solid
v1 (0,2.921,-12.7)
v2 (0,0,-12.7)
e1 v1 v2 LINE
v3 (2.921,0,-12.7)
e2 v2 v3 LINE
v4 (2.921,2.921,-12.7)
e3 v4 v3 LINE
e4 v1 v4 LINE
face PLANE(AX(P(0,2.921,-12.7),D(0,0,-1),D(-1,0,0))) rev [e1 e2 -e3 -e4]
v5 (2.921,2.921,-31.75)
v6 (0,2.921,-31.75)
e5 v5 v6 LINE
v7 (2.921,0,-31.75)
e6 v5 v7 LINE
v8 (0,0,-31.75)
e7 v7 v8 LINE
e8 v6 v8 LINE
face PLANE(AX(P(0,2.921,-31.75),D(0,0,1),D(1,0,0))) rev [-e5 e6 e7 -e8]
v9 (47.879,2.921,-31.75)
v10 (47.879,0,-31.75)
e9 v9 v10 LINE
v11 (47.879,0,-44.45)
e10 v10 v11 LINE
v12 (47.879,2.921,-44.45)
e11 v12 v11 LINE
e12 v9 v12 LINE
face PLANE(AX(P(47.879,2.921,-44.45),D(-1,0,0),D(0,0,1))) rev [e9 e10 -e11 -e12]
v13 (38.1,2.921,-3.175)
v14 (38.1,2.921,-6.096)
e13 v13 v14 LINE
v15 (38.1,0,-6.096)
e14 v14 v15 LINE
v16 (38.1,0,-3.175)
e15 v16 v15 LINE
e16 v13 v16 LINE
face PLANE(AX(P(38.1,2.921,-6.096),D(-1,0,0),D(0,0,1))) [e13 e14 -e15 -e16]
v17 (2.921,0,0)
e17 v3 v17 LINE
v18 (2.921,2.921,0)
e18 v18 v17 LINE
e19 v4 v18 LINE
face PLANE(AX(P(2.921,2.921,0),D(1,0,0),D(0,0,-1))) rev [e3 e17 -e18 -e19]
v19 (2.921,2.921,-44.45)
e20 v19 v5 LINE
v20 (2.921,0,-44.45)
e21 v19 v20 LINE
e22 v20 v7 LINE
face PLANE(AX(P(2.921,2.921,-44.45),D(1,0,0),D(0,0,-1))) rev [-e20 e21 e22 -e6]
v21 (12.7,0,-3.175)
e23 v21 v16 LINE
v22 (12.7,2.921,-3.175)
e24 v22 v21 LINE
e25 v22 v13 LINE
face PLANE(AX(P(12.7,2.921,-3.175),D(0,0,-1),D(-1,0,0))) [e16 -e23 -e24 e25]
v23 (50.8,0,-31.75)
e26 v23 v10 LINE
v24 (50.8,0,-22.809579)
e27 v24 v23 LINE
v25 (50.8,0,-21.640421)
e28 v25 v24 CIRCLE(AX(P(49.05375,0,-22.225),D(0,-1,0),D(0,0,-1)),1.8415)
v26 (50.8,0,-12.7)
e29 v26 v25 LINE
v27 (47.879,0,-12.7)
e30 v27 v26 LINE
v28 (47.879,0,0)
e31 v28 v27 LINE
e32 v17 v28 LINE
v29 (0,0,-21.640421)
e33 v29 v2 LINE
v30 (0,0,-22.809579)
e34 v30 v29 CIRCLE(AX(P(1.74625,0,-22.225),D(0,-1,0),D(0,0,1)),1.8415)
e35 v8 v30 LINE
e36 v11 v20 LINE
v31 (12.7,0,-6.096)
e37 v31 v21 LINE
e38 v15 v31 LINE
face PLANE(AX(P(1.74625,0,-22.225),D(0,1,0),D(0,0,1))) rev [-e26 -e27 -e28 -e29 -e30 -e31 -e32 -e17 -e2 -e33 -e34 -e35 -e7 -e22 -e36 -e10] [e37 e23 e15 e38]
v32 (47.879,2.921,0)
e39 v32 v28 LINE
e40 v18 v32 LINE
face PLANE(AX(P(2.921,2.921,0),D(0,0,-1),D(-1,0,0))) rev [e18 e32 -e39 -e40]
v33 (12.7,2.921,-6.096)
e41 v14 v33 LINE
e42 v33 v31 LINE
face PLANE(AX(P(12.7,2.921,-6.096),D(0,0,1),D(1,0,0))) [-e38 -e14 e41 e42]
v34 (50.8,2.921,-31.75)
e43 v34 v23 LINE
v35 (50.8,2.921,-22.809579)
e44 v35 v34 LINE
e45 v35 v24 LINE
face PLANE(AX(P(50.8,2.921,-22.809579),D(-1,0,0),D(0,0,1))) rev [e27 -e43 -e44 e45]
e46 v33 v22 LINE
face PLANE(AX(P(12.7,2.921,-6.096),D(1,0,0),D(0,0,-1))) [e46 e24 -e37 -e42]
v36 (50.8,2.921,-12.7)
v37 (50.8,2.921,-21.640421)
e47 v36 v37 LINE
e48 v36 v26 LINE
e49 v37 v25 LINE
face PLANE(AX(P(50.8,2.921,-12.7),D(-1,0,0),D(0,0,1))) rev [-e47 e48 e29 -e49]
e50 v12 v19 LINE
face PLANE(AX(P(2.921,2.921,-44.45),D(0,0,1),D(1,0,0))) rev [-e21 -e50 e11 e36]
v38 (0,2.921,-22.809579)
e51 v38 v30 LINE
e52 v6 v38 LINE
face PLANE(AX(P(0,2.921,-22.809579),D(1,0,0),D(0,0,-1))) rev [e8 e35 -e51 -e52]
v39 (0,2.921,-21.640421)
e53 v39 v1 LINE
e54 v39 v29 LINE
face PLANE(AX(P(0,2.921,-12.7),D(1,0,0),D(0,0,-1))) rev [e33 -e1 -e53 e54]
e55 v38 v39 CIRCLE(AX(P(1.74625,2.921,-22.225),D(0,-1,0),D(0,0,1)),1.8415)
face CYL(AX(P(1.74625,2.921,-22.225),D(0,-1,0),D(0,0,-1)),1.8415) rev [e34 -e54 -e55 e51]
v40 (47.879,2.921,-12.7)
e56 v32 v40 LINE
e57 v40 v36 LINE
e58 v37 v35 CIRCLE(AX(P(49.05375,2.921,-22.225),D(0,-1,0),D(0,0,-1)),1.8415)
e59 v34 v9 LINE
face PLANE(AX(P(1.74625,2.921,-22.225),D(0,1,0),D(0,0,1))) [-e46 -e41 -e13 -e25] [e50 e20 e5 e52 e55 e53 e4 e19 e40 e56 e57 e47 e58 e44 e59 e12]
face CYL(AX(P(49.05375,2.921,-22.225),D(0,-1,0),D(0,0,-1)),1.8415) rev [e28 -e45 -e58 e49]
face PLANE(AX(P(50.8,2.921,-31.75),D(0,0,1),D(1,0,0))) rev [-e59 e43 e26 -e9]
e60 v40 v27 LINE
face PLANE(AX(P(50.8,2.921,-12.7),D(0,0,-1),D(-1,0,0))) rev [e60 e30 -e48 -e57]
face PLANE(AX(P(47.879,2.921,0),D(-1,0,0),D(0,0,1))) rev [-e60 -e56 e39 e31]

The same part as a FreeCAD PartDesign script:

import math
import FreeCAD as App
import Part
import Sketcher

V = App.Vector
Q = App.Units.Quantity


def add_polygon(sketch, points):
    """Adds a closed chain of lines whose ends are joined by coincident constraints."""
    first, n = sketch.GeometryCount, len(points)
    for a, b in zip(points, points[1:] + points[:1]):
        sketch.addGeometry(Part.LineSegment(App.Vector(*a, 0), App.Vector(*b, 0)), False)
    for i in range(n):
        sketch.addConstraint(Sketcher.Constraint("Coincident", first + i, 2, first + (i + 1) % n, 1))

doc = App.newDocument("Part")
body = doc.addObject("PartDesign::Body", "Body")

# Sketch on XZ plane
sketch1 = body.newObject("Sketcher::SketchObject", "Sketch")
sketch1.AttachmentSupport = (doc.getObject("XZ_Plane"), [""])
sketch1.MapMode = "FlatFace"
sketch1.addGeometry(Part.LineSegment(V(2.921, 0, 0), V(47.879, 0, 0)), False)  # 0
sketch1.addGeometry(Part.LineSegment(V(47.879, 0, 0), V(47.879, -12.7, 0)), False)  # 1
sketch1.addGeometry(Part.LineSegment(V(47.879, -12.7, 0), V(50.8, -12.7, 0)), False)  # 2
sketch1.addGeometry(Part.LineSegment(V(50.8, -12.7, 0), V(50.8, -21.640421, 0)), False)  # 3
sketch1.addGeometry(Part.ArcOfCircle(Part.Circle(V(49.05375, -22.225, 0), V(0, 0, 1), 1.8415), math.radians(18.508628), math.radians(341.491372)), False)  # 4
sketch1.addGeometry(Part.LineSegment(V(50.8, -22.809579, 0), V(50.8, -31.75, 0)), False)  # 5
sketch1.addGeometry(Part.LineSegment(V(50.8, -31.75, 0), V(47.879, -31.75, 0)), False)  # 6
sketch1.addGeometry(Part.LineSegment(V(47.879, -31.75, 0), V(47.879, -44.45, 0)), False)  # 7
sketch1.addGeometry(Part.LineSegment(V(47.879, -44.45, 0), V(2.921, -44.45, 0)), False)  # 8
sketch1.addGeometry(Part.LineSegment(V(2.921, -44.45, 0), V(2.921, -31.75, 0)), False)  # 9
sketch1.addGeometry(Part.LineSegment(V(2.921, -31.75, 0), V(0, -31.75, 0)), False)  # 10
sketch1.addGeometry(Part.LineSegment(V(0, -31.75, 0), V(0, -22.809579, 0)), False)  # 11
sketch1.addGeometry(Part.ArcOfCircle(Part.Circle(V(1.74625, -22.225, 0), V(0, 0, 1), 1.8415), math.radians(-161.491372), math.radians(161.491372)), False)  # 12
sketch1.addGeometry(Part.LineSegment(V(0, -21.640421, 0), V(0, -12.7, 0)), False)  # 13
sketch1.addGeometry(Part.LineSegment(V(0, -12.7, 0), V(2.921, -12.7, 0)), False)  # 14
sketch1.addGeometry(Part.LineSegment(V(2.921, -12.7, 0), V(2.921, 0, 0)), False)  # 15
add_polygon(sketch1, [(38.1, -3.175), (12.7, -3.175), (12.7, -6.096), (38.1, -6.096)])  # lines 16-19
sketch1.addConstraint(Sketcher.Constraint("Coincident", 0, 2, 1, 1))
sketch1.addConstraint(Sketcher.Constraint("Coincident", 1, 2, 2, 1))
sketch1.addConstraint(Sketcher.Constraint("Coincident", 2, 2, 3, 1))
sketch1.addConstraint(Sketcher.Constraint("Coincident", 3, 2, 4, 1))
sketch1.addConstraint(Sketcher.Constraint("Coincident", 4, 2, 5, 1))
sketch1.addConstraint(Sketcher.Constraint("Coincident", 5, 2, 6, 1))
sketch1.addConstraint(Sketcher.Constraint("Coincident", 6, 2, 7, 1))
sketch1.addConstraint(Sketcher.Constraint("Coincident", 7, 2, 8, 1))
sketch1.addConstraint(Sketcher.Constraint("Coincident", 8, 2, 9, 1))
sketch1.addConstraint(Sketcher.Constraint("Coincident", 9, 2, 10, 1))
sketch1.addConstraint(Sketcher.Constraint("Coincident", 10, 2, 11, 1))
sketch1.addConstraint(Sketcher.Constraint("Coincident", 11, 2, 12, 1))
sketch1.addConstraint(Sketcher.Constraint("Coincident", 12, 2, 13, 1))
sketch1.addConstraint(Sketcher.Constraint("Coincident", 13, 2, 14, 1))
sketch1.addConstraint(Sketcher.Constraint("Coincident", 14, 2, 15, 1))
sketch1.addConstraint(Sketcher.Constraint("Coincident", 15, 2, 0, 1))
sketch1.addConstraint(Sketcher.Constraint("Horizontal", 0))
sketch1.addConstraint(Sketcher.Constraint("Vertical", 1))
sketch1.addConstraint(Sketcher.Constraint("Horizontal", 2))
sketch1.addConstraint(Sketcher.Constraint("Vertical", 3))
sketch1.addConstraint(Sketcher.Constraint("Vertical", 5))
sketch1.addConstraint(Sketcher.Constraint("Horizontal", 6))
sketch1.addConstraint(Sketcher.Constraint("Vertical", 7))
sketch1.addConstraint(Sketcher.Constraint("Horizontal", 8))
sketch1.addConstraint(Sketcher.Constraint("Vertical", 9))
sketch1.addConstraint(Sketcher.Constraint("Horizontal", 10))
sketch1.addConstraint(Sketcher.Constraint("Vertical", 11))
sketch1.addConstraint(Sketcher.Constraint("Vertical", 13))
sketch1.addConstraint(Sketcher.Constraint("Horizontal", 14))
sketch1.addConstraint(Sketcher.Constraint("Vertical", 15))
sketch1.addConstraint(Sketcher.Constraint("Horizontal", 16))
sketch1.addConstraint(Sketcher.Constraint("Vertical", 17))
sketch1.addConstraint(Sketcher.Constraint("Horizontal", 18))
sketch1.addConstraint(Sketcher.Constraint("Vertical", 19))
sketch1.addConstraint(Sketcher.Constraint("Equal", 4, 12))
sketch1.addConstraint(Sketcher.Constraint("PointOnObject", 0, 2, -1))
sketch1.addConstraint(Sketcher.Constraint("PointOnObject", 10, 2, -2))
sketch1.addConstraint(Sketcher.Constraint("PointOnObject", 12, 2, -2))
sketch1.addConstraint(Sketcher.Constraint("Horizontal", 4, 3, 12, 3))
sketch1.addConstraint(Sketcher.Constraint("Horizontal", 6, 2, 9, 2))
sketch1.addConstraint(Sketcher.Constraint("Horizontal", 4, 2, 11, 2))
sketch1.addConstraint(Sketcher.Constraint("Horizontal", 3, 2, 12, 2))
sketch1.addConstraint(Sketcher.Constraint("Horizontal", 2, 2, 13, 2))
sketch1.addConstraint(Sketcher.Constraint("Vertical", 1, 2, 6, 2))
sketch1.addConstraint(Sketcher.Constraint("Vertical", 9, 2, 14, 2))
sketch1.addConstraint(Sketcher.Constraint("Equal", 6, 10))
sketch1.addConstraint(Sketcher.Constraint("Equal", 3, 5))
sketch1.addConstraint(Sketcher.Constraint("Equal", 1, 7))
sketch1.addConstraint(Sketcher.Constraint("Equal", 14, 17))
sketch1.addConstraint(Sketcher.Constraint("DistanceX", 16, 2, 16, 1, Q("1 in")))
sketch1.addConstraint(Sketcher.Constraint("DistanceY", 1, 2, 1, 1, Q("0.5 in")))
sketch1.addConstraint(Sketcher.Constraint("DistanceX", -1, 1, 2, 2, Q("2 in")))
sketch1.addConstraint(Sketcher.Constraint("DistanceX", 0, 1, 0, 2, Q("1.77 in")))
sketch1.addConstraint(Sketcher.Constraint("DistanceX", -1, 1, 16, 2, Q("0.5 in")))
sketch1.addConstraint(Sketcher.Constraint("Radius", 4, Q("0.0725 in")))
sketch1.addConstraint(Sketcher.Constraint("DistanceY", 5, 2, -1, 1, Q("1.25 in")))
sketch1.addConstraint(Sketcher.Constraint("DistanceY", 17, 2, -1, 1, Q("0.24 in")))
sketch1.addConstraint(Sketcher.Constraint("DistanceX", 12, 3, 4, 3, Q("1.8625 in")))
pad1 = body.newObject("PartDesign::Pad", "Pad")
pad1.Profile = sketch1
pad1.Length = Q("0.115 in")
pad1.Reversed = True

doc.recompute()
